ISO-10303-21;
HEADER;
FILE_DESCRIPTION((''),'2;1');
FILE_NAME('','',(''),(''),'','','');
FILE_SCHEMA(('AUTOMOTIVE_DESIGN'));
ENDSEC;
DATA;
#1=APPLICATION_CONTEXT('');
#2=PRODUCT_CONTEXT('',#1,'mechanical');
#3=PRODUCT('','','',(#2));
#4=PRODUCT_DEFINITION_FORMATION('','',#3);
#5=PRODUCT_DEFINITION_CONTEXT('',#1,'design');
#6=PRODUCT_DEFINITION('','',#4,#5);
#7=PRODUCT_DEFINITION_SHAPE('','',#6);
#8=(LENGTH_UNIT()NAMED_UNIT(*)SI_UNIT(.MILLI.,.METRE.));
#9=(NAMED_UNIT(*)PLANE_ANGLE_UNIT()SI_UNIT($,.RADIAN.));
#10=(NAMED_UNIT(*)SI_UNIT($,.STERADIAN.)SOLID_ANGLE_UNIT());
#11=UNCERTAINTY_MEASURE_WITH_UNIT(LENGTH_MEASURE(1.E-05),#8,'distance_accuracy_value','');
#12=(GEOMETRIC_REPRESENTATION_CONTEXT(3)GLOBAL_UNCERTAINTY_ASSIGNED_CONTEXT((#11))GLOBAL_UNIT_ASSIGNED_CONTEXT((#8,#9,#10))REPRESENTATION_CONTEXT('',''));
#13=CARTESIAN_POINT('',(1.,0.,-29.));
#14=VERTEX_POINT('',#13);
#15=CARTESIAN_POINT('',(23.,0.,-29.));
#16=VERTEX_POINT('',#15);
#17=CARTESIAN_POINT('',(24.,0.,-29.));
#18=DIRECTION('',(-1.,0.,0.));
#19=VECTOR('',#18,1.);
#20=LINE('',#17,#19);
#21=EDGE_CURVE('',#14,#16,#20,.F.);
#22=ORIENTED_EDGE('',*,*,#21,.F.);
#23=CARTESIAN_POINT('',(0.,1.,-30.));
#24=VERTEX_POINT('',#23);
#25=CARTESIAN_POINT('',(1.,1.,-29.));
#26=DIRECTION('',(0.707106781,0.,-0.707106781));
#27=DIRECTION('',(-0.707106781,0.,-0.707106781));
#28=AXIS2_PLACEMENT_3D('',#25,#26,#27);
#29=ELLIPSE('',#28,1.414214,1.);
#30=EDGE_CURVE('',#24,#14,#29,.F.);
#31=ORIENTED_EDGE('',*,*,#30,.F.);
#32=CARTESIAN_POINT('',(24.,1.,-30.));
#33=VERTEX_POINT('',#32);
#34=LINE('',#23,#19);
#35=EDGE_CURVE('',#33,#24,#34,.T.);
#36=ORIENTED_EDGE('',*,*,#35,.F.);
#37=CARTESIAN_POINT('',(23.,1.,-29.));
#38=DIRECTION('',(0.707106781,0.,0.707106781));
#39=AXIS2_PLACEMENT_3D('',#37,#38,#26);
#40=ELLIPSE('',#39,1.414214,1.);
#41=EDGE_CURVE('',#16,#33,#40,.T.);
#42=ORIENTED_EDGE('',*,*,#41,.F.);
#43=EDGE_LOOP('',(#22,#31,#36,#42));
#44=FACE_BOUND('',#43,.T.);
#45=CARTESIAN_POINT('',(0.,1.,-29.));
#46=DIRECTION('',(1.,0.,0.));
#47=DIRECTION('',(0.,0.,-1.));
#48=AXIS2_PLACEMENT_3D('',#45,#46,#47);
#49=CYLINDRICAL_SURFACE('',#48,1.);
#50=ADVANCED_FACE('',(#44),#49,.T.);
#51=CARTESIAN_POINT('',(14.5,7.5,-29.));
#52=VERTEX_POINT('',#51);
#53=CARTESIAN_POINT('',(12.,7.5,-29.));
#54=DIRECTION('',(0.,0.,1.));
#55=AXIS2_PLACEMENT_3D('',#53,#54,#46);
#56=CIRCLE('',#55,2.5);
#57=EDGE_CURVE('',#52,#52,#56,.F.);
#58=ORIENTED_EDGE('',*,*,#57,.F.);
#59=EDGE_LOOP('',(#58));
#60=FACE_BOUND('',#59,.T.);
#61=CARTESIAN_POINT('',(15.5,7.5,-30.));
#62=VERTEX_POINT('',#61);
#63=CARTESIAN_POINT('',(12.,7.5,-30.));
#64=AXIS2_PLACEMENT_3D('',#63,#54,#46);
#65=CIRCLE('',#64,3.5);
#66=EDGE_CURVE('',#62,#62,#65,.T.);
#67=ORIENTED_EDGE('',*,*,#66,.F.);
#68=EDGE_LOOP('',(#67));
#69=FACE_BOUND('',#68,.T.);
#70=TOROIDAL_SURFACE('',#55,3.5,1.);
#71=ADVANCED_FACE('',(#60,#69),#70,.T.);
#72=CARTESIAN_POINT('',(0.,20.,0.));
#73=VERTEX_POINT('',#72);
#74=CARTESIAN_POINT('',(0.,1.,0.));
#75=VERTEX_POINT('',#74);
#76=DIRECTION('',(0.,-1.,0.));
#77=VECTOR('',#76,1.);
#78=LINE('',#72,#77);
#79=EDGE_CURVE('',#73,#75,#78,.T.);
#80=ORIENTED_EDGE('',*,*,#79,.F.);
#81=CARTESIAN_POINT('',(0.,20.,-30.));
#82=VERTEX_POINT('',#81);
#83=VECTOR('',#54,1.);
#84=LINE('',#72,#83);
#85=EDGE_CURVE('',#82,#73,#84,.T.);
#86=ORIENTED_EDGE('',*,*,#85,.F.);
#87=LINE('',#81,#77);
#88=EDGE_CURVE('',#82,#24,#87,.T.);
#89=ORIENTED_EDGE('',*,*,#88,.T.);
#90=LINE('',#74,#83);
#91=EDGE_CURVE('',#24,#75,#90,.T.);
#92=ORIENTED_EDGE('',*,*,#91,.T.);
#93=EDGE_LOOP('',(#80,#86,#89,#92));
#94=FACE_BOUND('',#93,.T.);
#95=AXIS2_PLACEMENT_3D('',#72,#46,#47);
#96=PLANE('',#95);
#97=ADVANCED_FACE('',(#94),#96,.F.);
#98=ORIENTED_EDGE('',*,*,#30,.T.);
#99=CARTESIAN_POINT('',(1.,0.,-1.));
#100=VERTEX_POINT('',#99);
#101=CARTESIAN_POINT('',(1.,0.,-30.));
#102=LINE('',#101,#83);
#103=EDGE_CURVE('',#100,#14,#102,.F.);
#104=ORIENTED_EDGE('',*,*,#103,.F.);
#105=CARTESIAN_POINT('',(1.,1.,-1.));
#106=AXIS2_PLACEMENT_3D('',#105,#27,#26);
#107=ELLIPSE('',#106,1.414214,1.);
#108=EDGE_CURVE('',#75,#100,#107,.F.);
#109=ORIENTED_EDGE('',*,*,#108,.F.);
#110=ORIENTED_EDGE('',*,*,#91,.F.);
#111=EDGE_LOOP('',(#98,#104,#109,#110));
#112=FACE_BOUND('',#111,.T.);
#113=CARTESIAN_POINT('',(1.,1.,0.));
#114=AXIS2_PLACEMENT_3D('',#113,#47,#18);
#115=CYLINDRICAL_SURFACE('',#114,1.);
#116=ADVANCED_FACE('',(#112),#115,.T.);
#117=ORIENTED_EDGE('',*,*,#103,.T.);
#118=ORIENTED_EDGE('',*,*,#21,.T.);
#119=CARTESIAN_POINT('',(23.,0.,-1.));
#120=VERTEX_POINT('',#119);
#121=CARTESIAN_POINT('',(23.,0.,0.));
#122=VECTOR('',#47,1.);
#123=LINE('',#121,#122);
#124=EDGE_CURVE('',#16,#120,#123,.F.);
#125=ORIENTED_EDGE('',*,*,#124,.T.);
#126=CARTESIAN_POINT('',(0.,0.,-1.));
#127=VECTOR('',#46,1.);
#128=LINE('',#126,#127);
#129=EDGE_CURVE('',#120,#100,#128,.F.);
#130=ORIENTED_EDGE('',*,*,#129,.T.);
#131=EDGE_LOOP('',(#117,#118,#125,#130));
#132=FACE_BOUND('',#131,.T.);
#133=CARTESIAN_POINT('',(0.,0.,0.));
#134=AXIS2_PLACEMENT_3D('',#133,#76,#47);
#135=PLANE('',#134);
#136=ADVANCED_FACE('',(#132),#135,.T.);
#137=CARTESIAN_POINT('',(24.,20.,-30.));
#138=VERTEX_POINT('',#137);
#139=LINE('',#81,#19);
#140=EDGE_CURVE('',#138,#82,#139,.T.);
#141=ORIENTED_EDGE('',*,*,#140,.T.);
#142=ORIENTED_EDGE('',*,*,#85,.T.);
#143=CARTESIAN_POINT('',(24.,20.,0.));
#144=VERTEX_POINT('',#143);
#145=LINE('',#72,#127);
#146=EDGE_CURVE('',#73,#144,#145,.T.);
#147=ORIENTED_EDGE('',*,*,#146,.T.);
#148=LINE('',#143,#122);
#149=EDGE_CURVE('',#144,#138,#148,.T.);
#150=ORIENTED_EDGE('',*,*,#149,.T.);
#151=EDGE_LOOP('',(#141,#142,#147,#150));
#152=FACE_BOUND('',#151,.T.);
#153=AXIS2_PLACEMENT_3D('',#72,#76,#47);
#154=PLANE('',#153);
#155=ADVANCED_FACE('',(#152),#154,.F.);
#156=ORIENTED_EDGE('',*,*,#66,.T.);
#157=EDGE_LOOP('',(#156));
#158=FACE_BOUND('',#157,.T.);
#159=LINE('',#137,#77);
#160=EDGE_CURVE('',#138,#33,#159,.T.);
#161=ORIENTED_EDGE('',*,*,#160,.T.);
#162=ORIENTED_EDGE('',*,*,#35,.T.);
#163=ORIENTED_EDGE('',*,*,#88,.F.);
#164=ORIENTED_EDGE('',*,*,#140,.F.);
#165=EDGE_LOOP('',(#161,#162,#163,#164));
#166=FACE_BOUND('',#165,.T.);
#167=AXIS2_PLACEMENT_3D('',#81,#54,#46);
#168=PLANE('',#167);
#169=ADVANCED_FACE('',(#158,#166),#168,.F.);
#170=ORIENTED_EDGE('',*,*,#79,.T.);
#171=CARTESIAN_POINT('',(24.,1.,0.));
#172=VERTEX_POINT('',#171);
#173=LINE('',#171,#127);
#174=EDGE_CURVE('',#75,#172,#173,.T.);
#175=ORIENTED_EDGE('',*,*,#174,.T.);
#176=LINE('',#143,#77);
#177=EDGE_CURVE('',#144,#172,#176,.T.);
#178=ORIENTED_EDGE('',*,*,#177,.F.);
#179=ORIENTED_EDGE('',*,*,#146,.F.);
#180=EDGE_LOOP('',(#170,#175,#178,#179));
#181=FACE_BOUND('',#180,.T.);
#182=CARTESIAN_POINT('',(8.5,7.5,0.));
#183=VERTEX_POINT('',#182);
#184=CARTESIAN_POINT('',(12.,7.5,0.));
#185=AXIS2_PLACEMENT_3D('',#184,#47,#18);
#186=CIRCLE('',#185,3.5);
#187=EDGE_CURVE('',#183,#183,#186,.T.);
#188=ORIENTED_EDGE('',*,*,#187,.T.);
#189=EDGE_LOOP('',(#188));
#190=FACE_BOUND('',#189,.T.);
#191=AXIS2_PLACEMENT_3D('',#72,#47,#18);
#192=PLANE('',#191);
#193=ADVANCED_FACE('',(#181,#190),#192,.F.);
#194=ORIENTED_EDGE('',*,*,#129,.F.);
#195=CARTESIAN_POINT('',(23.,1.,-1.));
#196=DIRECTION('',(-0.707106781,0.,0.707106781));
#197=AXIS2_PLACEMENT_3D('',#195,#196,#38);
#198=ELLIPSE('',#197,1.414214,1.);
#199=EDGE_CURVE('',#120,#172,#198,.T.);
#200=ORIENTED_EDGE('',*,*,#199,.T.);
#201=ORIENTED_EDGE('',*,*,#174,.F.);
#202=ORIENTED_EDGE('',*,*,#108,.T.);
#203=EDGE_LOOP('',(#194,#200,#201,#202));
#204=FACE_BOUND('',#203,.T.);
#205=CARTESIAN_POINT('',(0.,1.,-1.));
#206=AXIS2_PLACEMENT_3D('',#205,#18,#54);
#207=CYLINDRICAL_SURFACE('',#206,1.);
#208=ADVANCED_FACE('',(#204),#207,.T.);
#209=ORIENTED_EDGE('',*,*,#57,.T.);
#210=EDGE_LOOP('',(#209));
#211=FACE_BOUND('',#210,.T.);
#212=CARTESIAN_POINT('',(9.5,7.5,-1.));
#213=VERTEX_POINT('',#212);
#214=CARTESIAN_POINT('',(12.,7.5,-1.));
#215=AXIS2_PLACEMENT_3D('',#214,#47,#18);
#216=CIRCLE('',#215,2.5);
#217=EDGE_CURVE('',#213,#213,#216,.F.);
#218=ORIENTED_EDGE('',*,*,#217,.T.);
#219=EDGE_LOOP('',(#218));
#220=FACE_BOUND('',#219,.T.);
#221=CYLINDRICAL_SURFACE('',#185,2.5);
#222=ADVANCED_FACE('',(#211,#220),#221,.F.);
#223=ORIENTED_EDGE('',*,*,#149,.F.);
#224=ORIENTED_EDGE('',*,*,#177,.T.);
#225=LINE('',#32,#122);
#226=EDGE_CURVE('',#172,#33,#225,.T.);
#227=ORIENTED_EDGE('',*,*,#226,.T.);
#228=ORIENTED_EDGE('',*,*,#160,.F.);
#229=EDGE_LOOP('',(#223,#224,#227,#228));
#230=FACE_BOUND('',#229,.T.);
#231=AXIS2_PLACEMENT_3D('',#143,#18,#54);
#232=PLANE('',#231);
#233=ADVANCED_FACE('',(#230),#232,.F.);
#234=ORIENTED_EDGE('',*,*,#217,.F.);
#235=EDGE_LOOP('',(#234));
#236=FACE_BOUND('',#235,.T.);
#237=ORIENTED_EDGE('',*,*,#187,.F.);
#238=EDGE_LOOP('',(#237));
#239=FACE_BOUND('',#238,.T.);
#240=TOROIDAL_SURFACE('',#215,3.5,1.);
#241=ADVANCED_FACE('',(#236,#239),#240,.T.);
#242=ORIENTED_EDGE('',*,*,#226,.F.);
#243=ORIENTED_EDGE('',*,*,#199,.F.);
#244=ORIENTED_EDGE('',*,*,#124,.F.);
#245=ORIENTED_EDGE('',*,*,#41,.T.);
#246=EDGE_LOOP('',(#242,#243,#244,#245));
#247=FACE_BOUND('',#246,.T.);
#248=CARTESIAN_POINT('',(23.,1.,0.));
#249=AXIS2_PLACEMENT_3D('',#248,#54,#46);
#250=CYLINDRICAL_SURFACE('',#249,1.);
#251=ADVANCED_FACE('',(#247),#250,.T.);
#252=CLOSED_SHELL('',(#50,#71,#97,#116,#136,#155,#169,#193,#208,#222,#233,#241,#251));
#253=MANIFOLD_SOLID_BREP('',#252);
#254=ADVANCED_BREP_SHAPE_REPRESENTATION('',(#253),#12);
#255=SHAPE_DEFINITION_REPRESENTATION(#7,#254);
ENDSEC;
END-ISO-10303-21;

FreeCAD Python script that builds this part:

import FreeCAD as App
import Part
import Sketcher

V = App.Vector
Q = App.Units.Quantity


def edges_at(feature, points):
    """Names of the edges that pass closest to the given points."""
    edges = feature.Shape.Edges
    near = lambda p: min(range(len(edges)), key=lambda i: edges[i].distToShape(Part.Vertex(*p))[0])
    return sorted({f"Edge{near(p) + 1}" for p in points})


def add_polygon(sketch, points):
    """Adds a closed chain of lines whose ends are joined by coincident constraints."""
    first, n = sketch.GeometryCount, len(points)
    for a, b in zip(points, points[1:] + points[:1]):
        sketch.addGeometry(Part.LineSegment(App.Vector(*a, 0), App.Vector(*b, 0)), False)
    for i in range(n):
        sketch.addConstraint(Sketcher.Constraint("Coincident", first + i, 2, first + (i + 1) % n, 1))

doc = App.newDocument("Part")
body = doc.addObject("PartDesign::Body", "Body")

# Sketch on XZ plane
sketch1 = body.newObject("Sketcher::SketchObject", "Sketch")
sketch1.AttachmentSupport = (doc.getObject("XZ_Plane"), [""])
sketch1.MapMode = "FlatFace"
add_polygon(sketch1, [(0, -30), (0, 0), (24, 0), (24, -30)])  # lines 0-3
sketch1.addConstraint([
    Sketcher.Constraint("Vertical", 0),
    Sketcher.Constraint("Horizontal", 1),
    Sketcher.Constraint("Vertical", 2),
    Sketcher.Constraint("Horizontal", 3),
    Sketcher.Constraint("Coincident", 0, 2, -1, 1),
    Sketcher.Constraint("DistanceX", 1, 1, 1, 2, Q("24 mm")),
    Sketcher.Constraint("DistanceY", 0, 1, 0, 2, Q("30 mm")),
])
pad1 = body.newObject("PartDesign::Pad", "Pad")
pad1.Profile = sketch1
pad1.Length = 20
pad1.Reversed = True

# Sketch on XY plane
sketch2 = body.newObject("Sketcher::SketchObject", "Sketch001")
sketch2.AttachmentSupport = (doc.getObject("XY_Plane"), [""])
sketch2.MapMode = "FlatFace"
sketch2.AttachmentOffset = App.Placement(V(0, 0, -30), App.Rotation())
sketch2.addGeometry(Part.Circle(V(12, 7.5, 0), V(0, 0, 1), 2.5), False)
sketch2.addConstraint([
    Sketcher.Constraint("Diameter", 0, Q("5 mm")),
    Sketcher.Constraint("DistanceX", -1, 1, 0, 3, Q("12 mm")),
    Sketcher.Constraint("DistanceY", -1, 1, 0, 3, Q("7.5 mm")),
])
pocket1 = body.newObject("PartDesign::Pocket", "Pocket")
pocket1.Profile = sketch2
pocket1.Type = "ThroughAll"
pocket1.Midplane = True
doc.recompute()

fillet = body.newObject("PartDesign::Fillet", "Fillet")
fillet.Base = (pocket1, edges_at(pocket1, [
    (14.5, 7.5, 0),
    (14.5, 7.5, -30),
    (12, 0, -30),
    (24, 0, -15),
    (12, 0, 0),
    (0, 0, -15),
]))
fillet.Radius = 1

doc.recompute()
